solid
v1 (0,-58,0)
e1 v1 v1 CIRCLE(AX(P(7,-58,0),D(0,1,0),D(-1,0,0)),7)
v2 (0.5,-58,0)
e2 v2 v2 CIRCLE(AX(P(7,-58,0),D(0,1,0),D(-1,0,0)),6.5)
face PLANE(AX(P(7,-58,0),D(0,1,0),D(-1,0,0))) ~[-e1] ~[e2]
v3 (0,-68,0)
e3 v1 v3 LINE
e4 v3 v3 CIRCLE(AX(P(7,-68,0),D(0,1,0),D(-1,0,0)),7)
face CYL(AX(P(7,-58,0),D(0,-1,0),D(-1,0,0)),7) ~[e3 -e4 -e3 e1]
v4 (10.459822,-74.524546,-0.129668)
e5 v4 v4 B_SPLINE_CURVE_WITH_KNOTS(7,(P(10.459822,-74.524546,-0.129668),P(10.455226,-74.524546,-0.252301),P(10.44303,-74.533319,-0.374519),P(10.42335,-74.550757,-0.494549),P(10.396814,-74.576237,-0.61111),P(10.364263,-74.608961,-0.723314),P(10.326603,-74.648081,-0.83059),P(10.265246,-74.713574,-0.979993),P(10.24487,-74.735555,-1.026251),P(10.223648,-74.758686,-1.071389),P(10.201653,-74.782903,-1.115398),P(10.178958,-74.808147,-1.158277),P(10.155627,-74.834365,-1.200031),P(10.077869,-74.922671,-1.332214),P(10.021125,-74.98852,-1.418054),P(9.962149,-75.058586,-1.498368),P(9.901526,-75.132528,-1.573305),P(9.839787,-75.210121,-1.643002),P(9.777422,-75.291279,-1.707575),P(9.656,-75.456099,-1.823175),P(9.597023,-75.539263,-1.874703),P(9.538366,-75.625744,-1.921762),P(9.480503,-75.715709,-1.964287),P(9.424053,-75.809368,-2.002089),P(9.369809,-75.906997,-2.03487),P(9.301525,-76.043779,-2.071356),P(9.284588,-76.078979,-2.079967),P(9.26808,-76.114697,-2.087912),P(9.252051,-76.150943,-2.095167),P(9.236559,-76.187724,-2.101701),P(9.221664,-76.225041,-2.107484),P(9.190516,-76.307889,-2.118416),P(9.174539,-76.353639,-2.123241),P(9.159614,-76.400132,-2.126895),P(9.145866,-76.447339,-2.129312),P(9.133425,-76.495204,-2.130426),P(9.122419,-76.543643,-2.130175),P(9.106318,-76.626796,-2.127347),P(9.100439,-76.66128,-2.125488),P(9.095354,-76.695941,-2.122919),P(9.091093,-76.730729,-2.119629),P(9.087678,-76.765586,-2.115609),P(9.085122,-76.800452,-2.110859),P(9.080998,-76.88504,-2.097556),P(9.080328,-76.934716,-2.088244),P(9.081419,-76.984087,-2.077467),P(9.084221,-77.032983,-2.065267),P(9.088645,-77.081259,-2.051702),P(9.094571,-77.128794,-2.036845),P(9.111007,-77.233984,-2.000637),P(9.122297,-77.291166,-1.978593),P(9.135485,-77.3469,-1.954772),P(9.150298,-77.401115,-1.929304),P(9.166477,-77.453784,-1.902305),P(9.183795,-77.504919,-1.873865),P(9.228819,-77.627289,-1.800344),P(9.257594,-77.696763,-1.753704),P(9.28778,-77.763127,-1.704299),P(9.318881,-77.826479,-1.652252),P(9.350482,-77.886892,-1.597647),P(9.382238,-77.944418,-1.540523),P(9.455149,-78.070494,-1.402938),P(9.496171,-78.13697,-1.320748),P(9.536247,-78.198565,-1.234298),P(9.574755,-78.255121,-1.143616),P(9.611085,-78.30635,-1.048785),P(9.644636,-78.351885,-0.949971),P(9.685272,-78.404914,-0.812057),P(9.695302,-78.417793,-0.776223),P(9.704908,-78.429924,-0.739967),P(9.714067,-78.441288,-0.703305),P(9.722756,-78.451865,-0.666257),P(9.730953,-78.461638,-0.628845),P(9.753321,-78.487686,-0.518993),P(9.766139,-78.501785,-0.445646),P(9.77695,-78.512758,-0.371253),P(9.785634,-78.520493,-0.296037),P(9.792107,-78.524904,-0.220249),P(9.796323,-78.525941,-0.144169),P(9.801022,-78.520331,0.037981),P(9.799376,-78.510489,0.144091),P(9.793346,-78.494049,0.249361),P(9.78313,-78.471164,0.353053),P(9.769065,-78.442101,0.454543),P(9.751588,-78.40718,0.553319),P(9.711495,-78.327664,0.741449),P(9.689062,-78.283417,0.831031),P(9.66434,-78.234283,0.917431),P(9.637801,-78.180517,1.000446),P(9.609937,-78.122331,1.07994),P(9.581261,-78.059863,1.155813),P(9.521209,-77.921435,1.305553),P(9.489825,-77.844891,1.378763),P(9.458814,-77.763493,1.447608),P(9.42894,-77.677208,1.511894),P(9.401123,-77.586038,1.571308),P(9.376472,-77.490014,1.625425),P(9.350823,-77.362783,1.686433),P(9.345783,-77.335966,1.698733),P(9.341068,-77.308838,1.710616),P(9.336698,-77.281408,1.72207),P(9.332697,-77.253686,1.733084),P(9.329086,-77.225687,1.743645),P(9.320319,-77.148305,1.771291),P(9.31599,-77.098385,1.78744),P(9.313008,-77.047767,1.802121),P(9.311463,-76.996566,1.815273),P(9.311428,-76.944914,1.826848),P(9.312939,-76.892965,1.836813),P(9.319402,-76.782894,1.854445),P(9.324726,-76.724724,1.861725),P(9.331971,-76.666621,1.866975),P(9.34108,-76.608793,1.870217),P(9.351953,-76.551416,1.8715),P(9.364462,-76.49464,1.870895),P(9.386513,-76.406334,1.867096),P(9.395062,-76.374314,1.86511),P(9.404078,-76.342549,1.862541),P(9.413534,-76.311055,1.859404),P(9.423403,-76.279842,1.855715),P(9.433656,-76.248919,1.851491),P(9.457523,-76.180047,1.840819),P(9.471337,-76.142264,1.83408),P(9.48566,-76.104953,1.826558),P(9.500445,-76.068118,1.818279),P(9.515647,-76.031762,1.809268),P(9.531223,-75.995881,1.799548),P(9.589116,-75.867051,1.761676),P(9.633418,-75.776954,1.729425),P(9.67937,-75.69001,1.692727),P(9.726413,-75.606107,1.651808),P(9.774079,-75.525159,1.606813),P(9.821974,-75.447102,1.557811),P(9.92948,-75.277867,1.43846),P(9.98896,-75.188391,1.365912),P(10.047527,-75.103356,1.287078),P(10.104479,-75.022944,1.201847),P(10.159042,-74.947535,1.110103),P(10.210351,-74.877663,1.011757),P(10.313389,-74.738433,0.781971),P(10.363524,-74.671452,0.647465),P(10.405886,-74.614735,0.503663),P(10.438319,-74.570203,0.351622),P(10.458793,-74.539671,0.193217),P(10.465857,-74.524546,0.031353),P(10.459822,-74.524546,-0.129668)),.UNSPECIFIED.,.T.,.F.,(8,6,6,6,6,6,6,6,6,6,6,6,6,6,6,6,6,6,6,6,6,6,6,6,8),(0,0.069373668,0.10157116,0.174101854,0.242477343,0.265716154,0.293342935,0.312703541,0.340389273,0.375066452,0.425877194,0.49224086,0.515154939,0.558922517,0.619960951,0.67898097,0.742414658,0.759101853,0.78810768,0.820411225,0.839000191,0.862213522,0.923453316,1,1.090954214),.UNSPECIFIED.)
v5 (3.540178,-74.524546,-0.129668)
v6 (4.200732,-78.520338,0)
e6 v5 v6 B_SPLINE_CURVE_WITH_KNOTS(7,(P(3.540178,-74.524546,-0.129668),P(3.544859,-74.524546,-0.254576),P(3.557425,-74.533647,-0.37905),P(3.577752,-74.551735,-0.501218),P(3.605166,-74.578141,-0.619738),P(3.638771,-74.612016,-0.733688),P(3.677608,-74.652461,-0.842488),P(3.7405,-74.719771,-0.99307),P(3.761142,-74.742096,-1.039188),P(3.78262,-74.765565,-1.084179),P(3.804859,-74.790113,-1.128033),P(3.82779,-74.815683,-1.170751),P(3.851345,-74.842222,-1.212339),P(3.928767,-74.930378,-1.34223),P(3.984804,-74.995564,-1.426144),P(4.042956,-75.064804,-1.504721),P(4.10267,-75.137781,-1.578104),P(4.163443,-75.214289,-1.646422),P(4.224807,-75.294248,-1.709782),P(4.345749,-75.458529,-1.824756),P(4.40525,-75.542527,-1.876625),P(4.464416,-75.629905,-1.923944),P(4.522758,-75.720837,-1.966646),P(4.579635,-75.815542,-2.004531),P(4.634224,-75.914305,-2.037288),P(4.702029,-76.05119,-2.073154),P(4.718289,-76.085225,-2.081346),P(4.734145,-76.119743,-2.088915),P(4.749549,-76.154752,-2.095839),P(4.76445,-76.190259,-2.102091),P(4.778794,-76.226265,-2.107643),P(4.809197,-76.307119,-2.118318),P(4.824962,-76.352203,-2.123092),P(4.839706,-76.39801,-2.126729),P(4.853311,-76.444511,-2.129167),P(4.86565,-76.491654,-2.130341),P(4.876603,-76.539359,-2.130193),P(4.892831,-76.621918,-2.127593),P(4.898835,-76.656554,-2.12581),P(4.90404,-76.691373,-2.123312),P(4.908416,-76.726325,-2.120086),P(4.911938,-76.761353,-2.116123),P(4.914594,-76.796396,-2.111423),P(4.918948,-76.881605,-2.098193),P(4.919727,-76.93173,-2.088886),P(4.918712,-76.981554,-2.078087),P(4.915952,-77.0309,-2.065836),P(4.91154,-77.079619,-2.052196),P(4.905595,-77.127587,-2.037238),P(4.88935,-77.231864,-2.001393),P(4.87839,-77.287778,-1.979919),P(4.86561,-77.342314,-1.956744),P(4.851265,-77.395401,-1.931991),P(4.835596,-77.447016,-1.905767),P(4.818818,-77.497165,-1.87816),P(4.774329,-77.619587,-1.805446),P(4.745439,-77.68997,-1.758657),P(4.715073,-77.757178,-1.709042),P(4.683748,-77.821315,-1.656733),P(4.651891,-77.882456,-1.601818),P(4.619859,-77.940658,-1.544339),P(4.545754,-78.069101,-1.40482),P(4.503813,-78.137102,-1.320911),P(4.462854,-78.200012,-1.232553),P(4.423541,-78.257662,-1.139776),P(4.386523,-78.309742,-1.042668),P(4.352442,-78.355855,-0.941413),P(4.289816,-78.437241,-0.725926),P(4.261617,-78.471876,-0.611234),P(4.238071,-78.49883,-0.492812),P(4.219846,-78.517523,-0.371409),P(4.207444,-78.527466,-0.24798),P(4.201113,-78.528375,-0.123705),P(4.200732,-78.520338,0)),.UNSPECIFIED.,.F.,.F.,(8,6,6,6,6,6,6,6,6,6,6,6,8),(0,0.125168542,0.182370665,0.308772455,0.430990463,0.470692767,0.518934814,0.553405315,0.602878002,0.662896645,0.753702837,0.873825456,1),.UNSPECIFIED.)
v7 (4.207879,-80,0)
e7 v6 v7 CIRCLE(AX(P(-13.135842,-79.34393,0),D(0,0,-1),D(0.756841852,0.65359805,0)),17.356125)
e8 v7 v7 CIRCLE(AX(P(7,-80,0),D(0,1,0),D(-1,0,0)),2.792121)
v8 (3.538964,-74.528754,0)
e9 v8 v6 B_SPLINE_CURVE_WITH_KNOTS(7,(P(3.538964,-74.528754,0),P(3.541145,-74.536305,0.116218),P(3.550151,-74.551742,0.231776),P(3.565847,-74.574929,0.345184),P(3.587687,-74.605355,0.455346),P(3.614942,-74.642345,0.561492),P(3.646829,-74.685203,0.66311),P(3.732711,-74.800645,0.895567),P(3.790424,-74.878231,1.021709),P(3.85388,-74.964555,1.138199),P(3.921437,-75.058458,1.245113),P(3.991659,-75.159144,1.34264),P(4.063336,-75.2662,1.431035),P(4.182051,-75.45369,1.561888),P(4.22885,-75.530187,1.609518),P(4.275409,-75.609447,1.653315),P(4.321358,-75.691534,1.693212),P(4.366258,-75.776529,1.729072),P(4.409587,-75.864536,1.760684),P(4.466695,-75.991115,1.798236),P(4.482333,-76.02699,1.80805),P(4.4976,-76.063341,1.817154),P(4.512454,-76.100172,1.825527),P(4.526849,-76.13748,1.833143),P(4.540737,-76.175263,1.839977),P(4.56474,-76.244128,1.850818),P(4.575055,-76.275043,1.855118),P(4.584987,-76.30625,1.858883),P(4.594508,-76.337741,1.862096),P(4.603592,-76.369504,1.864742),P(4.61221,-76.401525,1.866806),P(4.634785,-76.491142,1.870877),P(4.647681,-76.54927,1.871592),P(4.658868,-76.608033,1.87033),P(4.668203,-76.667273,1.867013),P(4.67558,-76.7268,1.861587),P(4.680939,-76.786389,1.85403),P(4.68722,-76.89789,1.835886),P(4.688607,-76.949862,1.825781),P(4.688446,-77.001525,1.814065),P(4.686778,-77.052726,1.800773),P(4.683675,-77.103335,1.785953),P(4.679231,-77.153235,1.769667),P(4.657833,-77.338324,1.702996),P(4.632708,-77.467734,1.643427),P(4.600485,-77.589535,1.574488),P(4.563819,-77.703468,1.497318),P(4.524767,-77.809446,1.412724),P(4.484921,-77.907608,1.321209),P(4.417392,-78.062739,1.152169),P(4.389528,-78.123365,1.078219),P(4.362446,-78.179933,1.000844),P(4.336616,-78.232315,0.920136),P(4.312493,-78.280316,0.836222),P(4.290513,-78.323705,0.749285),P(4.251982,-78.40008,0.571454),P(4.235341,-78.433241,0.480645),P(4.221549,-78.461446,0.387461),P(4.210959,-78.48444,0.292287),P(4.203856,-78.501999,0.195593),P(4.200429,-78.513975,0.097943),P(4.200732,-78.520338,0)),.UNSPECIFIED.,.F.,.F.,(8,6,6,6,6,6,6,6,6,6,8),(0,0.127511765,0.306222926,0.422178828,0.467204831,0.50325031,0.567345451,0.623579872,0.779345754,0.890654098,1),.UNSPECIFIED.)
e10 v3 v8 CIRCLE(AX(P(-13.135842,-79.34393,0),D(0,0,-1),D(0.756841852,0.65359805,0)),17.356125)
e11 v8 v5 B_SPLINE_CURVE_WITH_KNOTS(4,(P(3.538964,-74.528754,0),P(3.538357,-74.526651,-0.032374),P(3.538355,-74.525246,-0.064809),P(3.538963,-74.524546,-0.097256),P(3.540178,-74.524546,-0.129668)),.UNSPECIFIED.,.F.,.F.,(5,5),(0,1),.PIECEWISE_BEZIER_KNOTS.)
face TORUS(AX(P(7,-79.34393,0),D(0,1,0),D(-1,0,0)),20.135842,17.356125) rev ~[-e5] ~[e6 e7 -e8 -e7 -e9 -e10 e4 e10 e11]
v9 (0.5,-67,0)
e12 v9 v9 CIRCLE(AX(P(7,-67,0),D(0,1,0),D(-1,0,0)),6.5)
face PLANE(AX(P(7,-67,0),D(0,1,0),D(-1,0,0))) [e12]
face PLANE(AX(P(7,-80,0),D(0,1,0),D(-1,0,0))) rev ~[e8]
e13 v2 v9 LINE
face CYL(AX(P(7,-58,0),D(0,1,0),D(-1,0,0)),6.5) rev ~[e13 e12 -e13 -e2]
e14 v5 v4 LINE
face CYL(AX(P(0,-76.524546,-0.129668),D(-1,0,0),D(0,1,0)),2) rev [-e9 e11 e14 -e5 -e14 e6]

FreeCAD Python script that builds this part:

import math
import FreeCAD as App
import Part
import Sketcher
Q = App.Units.Quantity

doc = App.newDocument("Part")
body = doc.addObject("PartDesign::Body", "Body")

# Sketch on XY plane
sketch1 = doc.addObject("Sketcher::SketchObject", "Sketch")
body.addObject(sketch1)
sketch1.AttachmentSupport = (doc.XY_Plane, [""])
sketch1.MapMode = "FlatFace"
sketch1.addGeometry([
    Part.LineSegment(App.Vector(0, -58, 0), App.Vector(0, -68, 0)),  # 0
    Part.ArcOfCircle(Part.Circle(App.Vector(-13.1, -79.3, 0), App.Vector(0, 0, 1), 17.4), math.radians(-2), math.radians(41)),  # 1
    Part.LineSegment(App.Vector(4.2, -80, 0), App.Vector(7, -80, 0)),  # 2
    Part.LineSegment(App.Vector(7, -80, 0), App.Vector(7, -58, 0)),  # 3
    Part.LineSegment(App.Vector(7, -58, 0), App.Vector(0, -58, 0)),  # 4
], False)
sketch1.addGeometry(Part.LineSegment(App.Vector(7, -80, 0), App.Vector(7, -58, 0)), True)  # axis
sketch1.addConstraint([
    Sketcher.Constraint("Coincident", 0, 2, 1, 2),
    Sketcher.Constraint("Coincident", 1, 1, 2, 1),
    Sketcher.Constraint("Coincident", 2, 2, 3, 1),
    Sketcher.Constraint("Coincident", 3, 2, 4, 1),
    Sketcher.Constraint("Coincident", 4, 2, 0, 1),
    Sketcher.Constraint("Vertical", 0),
    Sketcher.Constraint("Horizontal", 2),
    Sketcher.Constraint("Vertical", 3),
    Sketcher.Constraint("Horizontal", 4),
    Sketcher.Constraint("Vertical", 5),
    Sketcher.Constraint("Coincident", 5, 1, 2, 2),
    Sketcher.Constraint("PointOnObject", 0, 2, -2),
    Sketcher.Constraint("Horizontal", 4, 2, 5, 2),
    Sketcher.Constraint("DistanceX", 4, 2, 4, 1, Q("7 mm")),
    Sketcher.Constraint("DistanceY", 0, 2, 0, 1, Q("10 mm")),
    Sketcher.Constraint("DistanceY", 3, 1, 3, 2, Q("22 mm")),
    Sketcher.Constraint("DistanceY", 0, 2, -1, 1, Q("68 mm")),
    Sketcher.Constraint("Radius", 1, Q("17.356125 mm")),
    Sketcher.Constraint("DistanceX", 2, 1, 2, 2, Q("2.792121 mm")),
])
revolution = doc.addObject("PartDesign::Revolution", "Revolution")
body.addObject(revolution)
revolution.Profile = sketch1
revolution.ReferenceAxis = (sketch1, ["Axis0"])
revolution.Angle = 360

# Sketch on YZ plane
sketch2 = doc.addObject("Sketcher::SketchObject", "Sketch001")
body.addObject(sketch2)
sketch2.AttachmentSupport = (doc.YZ_Plane, [""])
sketch2.MapMode = "FlatFace"
sketch2.addGeometry(Part.Circle(App.Vector(-76.5, -0.1, 0), App.Vector(0, 0, 1), 2), False)
sketch2.addConstraint([
    Sketcher.Constraint("Diameter", 0, Q("4 mm")),
    Sketcher.Constraint("DistanceX", 0, 3, -1, 1, Q("76.524546 mm")),
    Sketcher.Constraint("DistanceY", 0, 3, -1, 1, Q("0.129668 mm")),
])
pocket1 = doc.addObject("PartDesign::Pocket", "Pocket")
body.addObject(pocket1)
pocket1.Profile = sketch2
pocket1.Length = 25.4
pocket1.Reversed = True

# Sketch on XZ plane
sketch3 = doc.addObject("Sketcher::SketchObject", "Sketch002")
body.addObject(sketch3)
sketch3.AttachmentSupport = (doc.XZ_Plane, [""])
sketch3.MapMode = "FlatFace"
sketch3.AttachmentOffset = App.Placement(App.Vector(0, 0, 58), App.Rotation())
sketch3.addGeometry(Part.Circle(App.Vector(7, 0, 0), App.Vector(0, 0, 1), 6), False)
sketch3.addConstraint([
    Sketcher.Constraint("PointOnObject", 0, 3, -1),
    Sketcher.Constraint("Diameter", 0, Q("13 mm")),
    Sketcher.Constraint("DistanceX", -1, 1, 0, 3, Q("7 mm")),
])
pocket2 = doc.addObject("PartDesign::Pocket", "Pocket001")
body.addObject(pocket2)
pocket2.Profile = sketch3
pocket2.Length = 9
pocket2.Reversed = True

doc.recompute()
